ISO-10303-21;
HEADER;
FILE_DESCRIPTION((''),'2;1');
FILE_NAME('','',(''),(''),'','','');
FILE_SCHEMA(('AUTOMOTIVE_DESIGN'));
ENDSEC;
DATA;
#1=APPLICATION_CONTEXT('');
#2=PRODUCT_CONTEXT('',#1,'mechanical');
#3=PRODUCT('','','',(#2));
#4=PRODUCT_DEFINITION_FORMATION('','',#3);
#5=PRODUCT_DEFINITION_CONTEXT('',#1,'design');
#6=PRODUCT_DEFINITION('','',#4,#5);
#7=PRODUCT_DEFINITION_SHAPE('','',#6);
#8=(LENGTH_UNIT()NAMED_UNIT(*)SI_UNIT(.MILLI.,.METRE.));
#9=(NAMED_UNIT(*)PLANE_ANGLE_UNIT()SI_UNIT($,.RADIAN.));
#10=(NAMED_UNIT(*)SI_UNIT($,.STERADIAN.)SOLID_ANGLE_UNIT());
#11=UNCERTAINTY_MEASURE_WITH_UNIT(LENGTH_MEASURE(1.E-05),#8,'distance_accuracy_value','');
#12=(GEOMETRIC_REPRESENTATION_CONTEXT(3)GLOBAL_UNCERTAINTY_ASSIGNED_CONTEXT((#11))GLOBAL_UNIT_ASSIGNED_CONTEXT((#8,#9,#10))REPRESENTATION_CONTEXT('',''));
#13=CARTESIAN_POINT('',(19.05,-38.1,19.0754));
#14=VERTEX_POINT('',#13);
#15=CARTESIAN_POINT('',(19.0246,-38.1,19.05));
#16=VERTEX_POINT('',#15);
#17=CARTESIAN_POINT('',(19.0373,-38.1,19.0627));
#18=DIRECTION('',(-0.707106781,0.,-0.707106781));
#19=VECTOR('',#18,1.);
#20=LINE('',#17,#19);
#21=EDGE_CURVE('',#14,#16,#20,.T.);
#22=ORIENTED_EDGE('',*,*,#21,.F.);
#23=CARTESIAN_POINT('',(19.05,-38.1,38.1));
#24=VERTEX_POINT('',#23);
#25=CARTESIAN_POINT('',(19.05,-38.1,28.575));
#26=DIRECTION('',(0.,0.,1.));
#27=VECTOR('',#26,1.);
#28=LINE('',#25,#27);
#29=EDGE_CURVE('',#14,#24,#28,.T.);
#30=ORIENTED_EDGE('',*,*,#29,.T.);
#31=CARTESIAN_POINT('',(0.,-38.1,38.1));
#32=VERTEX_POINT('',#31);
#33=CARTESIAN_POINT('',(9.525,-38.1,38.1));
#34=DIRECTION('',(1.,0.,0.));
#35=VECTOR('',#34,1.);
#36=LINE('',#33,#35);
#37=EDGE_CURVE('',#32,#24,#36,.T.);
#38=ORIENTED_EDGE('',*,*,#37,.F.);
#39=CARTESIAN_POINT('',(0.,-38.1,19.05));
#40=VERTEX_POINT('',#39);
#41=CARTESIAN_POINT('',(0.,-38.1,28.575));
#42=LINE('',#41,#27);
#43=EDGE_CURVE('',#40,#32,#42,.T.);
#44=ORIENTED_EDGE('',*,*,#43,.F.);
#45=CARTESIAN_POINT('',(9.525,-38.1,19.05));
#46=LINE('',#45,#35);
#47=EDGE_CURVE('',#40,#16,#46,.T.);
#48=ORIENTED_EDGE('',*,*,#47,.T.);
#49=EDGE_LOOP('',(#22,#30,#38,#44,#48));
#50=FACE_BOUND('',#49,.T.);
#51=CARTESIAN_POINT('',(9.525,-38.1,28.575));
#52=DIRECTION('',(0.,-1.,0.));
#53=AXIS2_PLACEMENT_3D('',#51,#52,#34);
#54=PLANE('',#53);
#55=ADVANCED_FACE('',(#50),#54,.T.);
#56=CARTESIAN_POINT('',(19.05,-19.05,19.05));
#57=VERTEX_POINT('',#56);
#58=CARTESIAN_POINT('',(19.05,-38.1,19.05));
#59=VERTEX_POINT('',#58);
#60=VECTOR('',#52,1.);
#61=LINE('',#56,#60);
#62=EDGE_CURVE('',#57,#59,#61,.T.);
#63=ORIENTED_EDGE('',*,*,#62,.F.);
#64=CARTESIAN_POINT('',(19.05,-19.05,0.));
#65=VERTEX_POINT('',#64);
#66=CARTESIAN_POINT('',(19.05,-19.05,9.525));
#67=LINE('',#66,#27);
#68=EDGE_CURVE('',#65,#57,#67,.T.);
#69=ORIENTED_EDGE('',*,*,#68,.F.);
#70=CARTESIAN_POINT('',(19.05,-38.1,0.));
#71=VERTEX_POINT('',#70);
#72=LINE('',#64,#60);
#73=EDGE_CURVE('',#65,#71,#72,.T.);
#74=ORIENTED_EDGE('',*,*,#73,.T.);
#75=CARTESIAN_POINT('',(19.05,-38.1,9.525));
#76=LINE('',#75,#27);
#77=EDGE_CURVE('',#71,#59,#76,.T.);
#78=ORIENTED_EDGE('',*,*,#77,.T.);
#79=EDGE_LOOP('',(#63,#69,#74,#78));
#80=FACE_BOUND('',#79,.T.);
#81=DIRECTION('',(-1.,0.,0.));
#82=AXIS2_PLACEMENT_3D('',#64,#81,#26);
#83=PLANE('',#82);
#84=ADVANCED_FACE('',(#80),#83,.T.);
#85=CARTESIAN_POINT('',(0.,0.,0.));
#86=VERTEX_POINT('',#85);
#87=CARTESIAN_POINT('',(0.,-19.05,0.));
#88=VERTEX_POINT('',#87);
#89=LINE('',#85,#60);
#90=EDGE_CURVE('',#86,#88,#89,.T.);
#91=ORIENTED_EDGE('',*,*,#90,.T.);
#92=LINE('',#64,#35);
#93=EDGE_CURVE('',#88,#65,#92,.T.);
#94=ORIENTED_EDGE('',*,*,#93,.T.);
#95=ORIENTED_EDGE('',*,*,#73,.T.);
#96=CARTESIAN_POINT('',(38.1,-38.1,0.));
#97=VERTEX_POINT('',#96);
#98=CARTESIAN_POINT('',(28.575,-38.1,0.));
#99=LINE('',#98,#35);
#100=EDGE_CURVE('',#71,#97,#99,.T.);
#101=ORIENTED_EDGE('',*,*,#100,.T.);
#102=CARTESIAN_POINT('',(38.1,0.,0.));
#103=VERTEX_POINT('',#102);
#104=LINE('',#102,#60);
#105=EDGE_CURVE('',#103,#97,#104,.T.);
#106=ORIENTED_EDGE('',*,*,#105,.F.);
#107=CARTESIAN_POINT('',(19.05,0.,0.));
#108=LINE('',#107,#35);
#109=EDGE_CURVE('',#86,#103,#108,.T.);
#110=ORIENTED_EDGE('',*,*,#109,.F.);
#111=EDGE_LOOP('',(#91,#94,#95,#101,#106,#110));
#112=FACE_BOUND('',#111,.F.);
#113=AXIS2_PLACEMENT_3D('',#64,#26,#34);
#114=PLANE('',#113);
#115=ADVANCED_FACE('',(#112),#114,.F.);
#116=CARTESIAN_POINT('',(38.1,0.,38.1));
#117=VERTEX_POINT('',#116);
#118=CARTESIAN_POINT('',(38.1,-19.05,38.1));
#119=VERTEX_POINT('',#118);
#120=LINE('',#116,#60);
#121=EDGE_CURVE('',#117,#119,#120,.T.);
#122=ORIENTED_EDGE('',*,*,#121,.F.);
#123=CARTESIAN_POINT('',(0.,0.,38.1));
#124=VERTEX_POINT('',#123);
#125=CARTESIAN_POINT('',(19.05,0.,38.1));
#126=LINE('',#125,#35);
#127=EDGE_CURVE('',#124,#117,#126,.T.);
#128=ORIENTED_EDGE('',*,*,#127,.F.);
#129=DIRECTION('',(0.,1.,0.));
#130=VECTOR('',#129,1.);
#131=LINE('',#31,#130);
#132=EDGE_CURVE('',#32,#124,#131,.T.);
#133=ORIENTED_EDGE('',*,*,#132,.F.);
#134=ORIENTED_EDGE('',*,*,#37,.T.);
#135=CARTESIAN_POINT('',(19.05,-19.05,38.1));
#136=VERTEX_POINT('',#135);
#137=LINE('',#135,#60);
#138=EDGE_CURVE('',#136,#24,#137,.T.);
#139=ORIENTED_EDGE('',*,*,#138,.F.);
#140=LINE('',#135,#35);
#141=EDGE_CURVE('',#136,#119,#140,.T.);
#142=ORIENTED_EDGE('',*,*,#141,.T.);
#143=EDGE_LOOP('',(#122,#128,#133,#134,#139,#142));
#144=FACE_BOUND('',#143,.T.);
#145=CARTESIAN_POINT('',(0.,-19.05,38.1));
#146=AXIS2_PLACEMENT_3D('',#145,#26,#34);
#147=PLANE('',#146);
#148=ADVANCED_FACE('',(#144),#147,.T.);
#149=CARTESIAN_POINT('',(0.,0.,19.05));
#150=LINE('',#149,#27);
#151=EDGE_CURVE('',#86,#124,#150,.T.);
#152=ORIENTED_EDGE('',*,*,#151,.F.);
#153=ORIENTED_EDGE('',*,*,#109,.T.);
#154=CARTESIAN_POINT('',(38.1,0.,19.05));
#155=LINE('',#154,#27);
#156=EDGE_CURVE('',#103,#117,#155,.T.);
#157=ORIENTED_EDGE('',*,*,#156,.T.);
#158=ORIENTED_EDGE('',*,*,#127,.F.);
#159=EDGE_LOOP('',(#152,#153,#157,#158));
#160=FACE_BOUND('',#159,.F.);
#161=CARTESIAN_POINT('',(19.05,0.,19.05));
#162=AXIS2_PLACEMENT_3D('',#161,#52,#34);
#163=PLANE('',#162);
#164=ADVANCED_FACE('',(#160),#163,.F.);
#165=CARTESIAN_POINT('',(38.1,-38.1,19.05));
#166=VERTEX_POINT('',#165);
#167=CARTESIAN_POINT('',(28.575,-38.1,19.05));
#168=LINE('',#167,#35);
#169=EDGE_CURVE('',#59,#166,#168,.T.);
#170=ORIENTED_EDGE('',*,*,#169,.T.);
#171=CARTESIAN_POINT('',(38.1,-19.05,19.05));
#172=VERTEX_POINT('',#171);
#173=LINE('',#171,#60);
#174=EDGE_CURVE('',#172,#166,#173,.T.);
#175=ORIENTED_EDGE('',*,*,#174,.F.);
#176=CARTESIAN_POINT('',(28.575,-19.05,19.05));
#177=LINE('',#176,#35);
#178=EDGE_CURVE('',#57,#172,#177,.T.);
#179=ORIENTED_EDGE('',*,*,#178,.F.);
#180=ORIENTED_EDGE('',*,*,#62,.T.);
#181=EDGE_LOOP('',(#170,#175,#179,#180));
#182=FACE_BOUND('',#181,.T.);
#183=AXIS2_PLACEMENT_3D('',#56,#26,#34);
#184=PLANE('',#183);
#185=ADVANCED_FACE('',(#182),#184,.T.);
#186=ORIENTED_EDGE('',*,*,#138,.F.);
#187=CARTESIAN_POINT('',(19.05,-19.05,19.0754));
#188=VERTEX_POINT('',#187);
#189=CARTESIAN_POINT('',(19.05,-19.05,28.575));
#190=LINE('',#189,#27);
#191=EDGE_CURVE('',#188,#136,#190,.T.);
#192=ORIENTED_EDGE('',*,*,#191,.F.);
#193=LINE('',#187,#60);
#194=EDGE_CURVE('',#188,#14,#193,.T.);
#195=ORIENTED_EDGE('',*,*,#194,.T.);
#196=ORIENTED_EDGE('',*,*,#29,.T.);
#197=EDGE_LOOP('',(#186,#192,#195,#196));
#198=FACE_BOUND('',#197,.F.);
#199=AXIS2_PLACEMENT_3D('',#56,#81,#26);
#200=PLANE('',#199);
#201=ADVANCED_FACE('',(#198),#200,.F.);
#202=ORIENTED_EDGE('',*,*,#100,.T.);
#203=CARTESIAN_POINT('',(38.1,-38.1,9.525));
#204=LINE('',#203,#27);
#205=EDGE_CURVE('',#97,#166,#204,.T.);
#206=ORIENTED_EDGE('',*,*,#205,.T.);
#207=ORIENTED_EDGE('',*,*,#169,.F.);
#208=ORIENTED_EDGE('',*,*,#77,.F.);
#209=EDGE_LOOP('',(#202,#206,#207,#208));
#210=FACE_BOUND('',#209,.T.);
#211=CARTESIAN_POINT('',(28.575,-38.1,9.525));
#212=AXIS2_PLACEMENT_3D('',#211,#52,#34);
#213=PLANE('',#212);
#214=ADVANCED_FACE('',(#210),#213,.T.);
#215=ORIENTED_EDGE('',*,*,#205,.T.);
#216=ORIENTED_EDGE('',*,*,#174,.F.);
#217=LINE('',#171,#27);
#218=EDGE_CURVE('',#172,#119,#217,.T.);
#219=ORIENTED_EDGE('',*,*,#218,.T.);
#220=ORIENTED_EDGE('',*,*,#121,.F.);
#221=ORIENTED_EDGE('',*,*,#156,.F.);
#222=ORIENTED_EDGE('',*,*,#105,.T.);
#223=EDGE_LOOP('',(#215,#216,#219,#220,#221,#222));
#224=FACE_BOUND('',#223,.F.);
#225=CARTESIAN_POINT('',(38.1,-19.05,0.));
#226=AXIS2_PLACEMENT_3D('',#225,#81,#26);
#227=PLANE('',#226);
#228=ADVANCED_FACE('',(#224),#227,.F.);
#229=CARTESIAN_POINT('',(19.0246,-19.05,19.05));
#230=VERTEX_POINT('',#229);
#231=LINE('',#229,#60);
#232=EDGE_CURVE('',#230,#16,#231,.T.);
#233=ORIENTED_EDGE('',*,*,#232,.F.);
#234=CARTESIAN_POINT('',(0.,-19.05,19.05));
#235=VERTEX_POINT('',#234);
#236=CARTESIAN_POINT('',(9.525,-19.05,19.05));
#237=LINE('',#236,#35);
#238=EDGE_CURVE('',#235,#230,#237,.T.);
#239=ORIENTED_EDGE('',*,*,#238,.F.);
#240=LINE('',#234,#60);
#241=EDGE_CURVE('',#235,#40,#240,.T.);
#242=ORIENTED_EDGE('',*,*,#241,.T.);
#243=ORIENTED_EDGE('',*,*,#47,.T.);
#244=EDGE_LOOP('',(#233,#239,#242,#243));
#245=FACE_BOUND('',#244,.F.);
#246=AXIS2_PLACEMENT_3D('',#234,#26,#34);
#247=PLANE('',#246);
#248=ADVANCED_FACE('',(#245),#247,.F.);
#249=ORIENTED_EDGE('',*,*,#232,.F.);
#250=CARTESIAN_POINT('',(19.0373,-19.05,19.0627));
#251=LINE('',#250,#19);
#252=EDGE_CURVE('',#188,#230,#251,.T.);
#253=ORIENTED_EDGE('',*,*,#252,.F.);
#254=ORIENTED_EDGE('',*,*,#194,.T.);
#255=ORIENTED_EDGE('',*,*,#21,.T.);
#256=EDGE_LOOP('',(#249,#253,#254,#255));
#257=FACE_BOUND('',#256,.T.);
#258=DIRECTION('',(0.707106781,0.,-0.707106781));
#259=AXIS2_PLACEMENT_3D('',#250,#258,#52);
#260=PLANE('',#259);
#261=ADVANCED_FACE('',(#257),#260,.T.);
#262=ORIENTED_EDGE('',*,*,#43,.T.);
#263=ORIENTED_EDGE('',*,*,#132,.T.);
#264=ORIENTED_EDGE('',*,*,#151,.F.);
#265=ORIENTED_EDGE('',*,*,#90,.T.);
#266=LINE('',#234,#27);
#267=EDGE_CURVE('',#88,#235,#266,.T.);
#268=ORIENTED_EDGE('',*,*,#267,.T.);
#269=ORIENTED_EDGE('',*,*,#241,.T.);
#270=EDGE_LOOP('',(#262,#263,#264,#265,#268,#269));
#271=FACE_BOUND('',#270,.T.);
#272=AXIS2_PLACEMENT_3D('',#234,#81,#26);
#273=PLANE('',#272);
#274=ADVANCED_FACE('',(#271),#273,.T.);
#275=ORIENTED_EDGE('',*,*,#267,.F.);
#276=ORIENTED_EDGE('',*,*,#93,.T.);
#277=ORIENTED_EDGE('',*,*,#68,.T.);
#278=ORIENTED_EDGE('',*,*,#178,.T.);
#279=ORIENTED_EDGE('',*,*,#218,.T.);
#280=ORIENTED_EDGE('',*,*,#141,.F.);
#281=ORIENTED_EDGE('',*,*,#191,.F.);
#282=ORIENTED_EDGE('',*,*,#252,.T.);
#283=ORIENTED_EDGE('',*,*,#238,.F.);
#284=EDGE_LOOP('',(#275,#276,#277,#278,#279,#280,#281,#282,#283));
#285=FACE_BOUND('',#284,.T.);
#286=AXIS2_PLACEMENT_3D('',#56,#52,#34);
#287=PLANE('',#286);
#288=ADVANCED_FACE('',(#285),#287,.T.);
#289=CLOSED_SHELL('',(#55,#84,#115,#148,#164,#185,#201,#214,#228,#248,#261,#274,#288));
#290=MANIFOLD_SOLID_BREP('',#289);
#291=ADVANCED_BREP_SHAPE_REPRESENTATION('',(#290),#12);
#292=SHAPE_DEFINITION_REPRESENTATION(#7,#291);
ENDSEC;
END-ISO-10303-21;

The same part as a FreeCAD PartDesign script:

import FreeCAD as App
import Part
import Sketcher

V = App.Vector
Q = App.Units.Quantity


def edges_at(feature, points):
    """Names of the edges that pass closest to the given points."""
    edges = feature.Shape.Edges
    near = lambda p: min(range(len(edges)), key=lambda i: edges[i].distToShape(Part.Vertex(*p))[0])
    return sorted({f"Edge{near(p) + 1}" for p in points})

doc = App.newDocument("Part")
params = doc.addObject("Spreadsheet::Sheet", "Params")
for row, (alias, value) in enumerate([
    ("sketch1_width", "1.5 in"),
    ("pad1_length", "0.75 in"),
    ("sketch2_width", "0.75 in"),
    ("pad2_length", "0.75 in"),
    ("chamfer_size", "0.001 in"),
    ("sketch3_width", "0.75 in"),
    ("pad3_length", "0.75 in"),
], start=1):
    params.set(f"A{row}", alias)
    params.set(f"B{row}", "=" + value)
    params.setAlias(f"B{row}", alias)

body = doc.addObject("PartDesign::Body", "Body")

sketch1 = doc.addObject("Sketcher::SketchObject", "Sketch")
body.addObject(sketch1)
sketch1.AttachmentSupport = (doc.XZ_Plane, [""])
sketch1.MapMode = "FlatFace"
sketch1.addGeometry(Part.LineSegment(V(0, 38, 0), V(0, 0, 0)), False)
sketch1.addGeometry(Part.LineSegment(V(0, 0, 0), V(38, 0, 0)), False)
sketch1.addGeometry(Part.LineSegment(V(38, 0, 0), V(38, 38, 0)), False)
sketch1.addGeometry(Part.LineSegment(V(38, 38, 0), V(0, 38, 0)), False)
sketch1.addConstraint(Sketcher.Constraint("Coincident", 0, 2, 1, 1))
sketch1.addConstraint(Sketcher.Constraint("Coincident", 1, 2, 2, 1))
sketch1.addConstraint(Sketcher.Constraint("Coincident", 2, 2, 3, 1))
sketch1.addConstraint(Sketcher.Constraint("Coincident", 3, 2, 0, 1))
sketch1.addConstraint(Sketcher.Constraint("Vertical", 0))
sketch1.addConstraint(Sketcher.Constraint("Horizontal", 1))
sketch1.addConstraint(Sketcher.Constraint("Vertical", 2))
sketch1.addConstraint(Sketcher.Constraint("Horizontal", 3))
sketch1.addConstraint(Sketcher.Constraint("Coincident", 0, 2, -1, 1))
sketch1.addConstraint(Sketcher.Constraint("Equal", 3, 0))
sketch1.addConstraint(Sketcher.Constraint("DistanceX", 1, 1, 1, 2, Q("1.5 in")))
sketch1.setExpression("Constraints[10]", "Params.sketch1_width")
pad1 = doc.addObject("PartDesign::Pad", "Pad")
body.addObject(pad1)
pad1.Profile = sketch1
pad1.setExpression("Length", "Params.pad1_length")

sketch2 = doc.addObject("Sketcher::SketchObject", "Sketch001")
body.addObject(sketch2)
sketch2.AttachmentSupport = (doc.XZ_Plane, [""])
sketch2.MapMode = "FlatFace"
sketch2.AttachmentOffset = App.Placement(V(0, 0, 0.75 * 25.4), App.Rotation())
sketch2.addGeometry(Part.LineSegment(V(0, 38, 0), V(0, 19, 0)), False)
sketch2.addGeometry(Part.LineSegment(V(0, 19, 0), V(19, 19, 0)), False)
sketch2.addGeometry(Part.LineSegment(V(19, 19, 0), V(19, 38, 0)), False)
sketch2.addGeometry(Part.LineSegment(V(19, 38, 0), V(0, 38, 0)), False)
sketch2.addConstraint(Sketcher.Constraint("Coincident", 0, 2, 1, 1))
sketch2.addConstraint(Sketcher.Constraint("Coincident", 1, 2, 2, 1))
sketch2.addConstraint(Sketcher.Constraint("Coincident", 2, 2, 3, 1))
sketch2.addConstraint(Sketcher.Constraint("Coincident", 3, 2, 0, 1))
sketch2.addConstraint(Sketcher.Constraint("Vertical", 0))
sketch2.addConstraint(Sketcher.Constraint("Horizontal", 1))
sketch2.addConstraint(Sketcher.Constraint("Vertical", 2))
sketch2.addConstraint(Sketcher.Constraint("Horizontal", 3))
sketch2.addConstraint(Sketcher.Constraint("PointOnObject", 0, 2, -2))
sketch2.addConstraint(Sketcher.Constraint("Equal", 3, 0))
sketch2.addConstraint(Sketcher.Constraint("DistanceX", 1, 1, 1, 2, Q("0.75 in")))
sketch2.addConstraint(Sketcher.Constraint("DistanceY", -1, 1, 2, 2, Q("1.5 in")))
sketch2.setExpression("Constraints[10]", "Params.sketch2_width")
pad2 = doc.addObject("PartDesign::Pad", "Pad001")
body.addObject(pad2)
pad2.Profile = sketch2
pad2.setExpression("Length", "Params.pad2_length")
doc.recompute()

chamfer = doc.addObject("PartDesign::Chamfer", "Chamfer")
body.addObject(chamfer)
chamfer.Base = (pad2, edges_at(pad2, [(19.05, -28.575, 19.05)]))
chamfer.setExpression("Size", "Params.chamfer_size")

sketch3 = doc.addObject("Sketcher::SketchObject", "Sketch002")
body.addObject(sketch3)
sketch3.AttachmentSupport = (doc.XZ_Plane, [""])
sketch3.MapMode = "FlatFace"
sketch3.AttachmentOffset = App.Placement(V(0, 0, 0.75 * 25.4), App.Rotation())
sketch3.addGeometry(Part.LineSegment(V(19, 19, 0), V(19, 0, 0)), False)
sketch3.addGeometry(Part.LineSegment(V(19, 0, 0), V(38, 0, 0)), False)
sketch3.addGeometry(Part.LineSegment(V(38, 0, 0), V(38, 19, 0)), False)
sketch3.addGeometry(Part.LineSegment(V(38, 19, 0), V(19, 19, 0)), False)
sketch3.addConstraint(Sketcher.Constraint("Coincident", 0, 2, 1, 1))
sketch3.addConstraint(Sketcher.Constraint("Coincident", 1, 2, 2, 1))
sketch3.addConstraint(Sketcher.Constraint("Coincident", 2, 2, 3, 1))
sketch3.addConstraint(Sketcher.Constraint("Coincident", 3, 2, 0, 1))
sketch3.addConstraint(Sketcher.Constraint("Vertical", 0))
sketch3.addConstraint(Sketcher.Constraint("Horizontal", 1))
sketch3.addConstraint(Sketcher.Constraint("Vertical", 2))
sketch3.addConstraint(Sketcher.Constraint("Horizontal", 3))
sketch3.addConstraint(Sketcher.Constraint("PointOnObject", 0, 2, -1))
sketch3.addConstraint(Sketcher.Constraint("Equal", 3, 0))
sketch3.addConstraint(Sketcher.Constraint("DistanceX", 1, 1, 1, 2, Q("0.75 in")))
sketch3.addConstraint(Sketcher.Constraint("DistanceX", -1, 1, 1, 2, Q("1.5 in")))
sketch3.setExpression("Constraints[10]", "Params.sketch3_width")
pad3 = doc.addObject("PartDesign::Pad", "Pad002")
body.addObject(pad3)
pad3.Profile = sketch3
pad3.setExpression("Length", "Params.pad3_length")

doc.recompute()
